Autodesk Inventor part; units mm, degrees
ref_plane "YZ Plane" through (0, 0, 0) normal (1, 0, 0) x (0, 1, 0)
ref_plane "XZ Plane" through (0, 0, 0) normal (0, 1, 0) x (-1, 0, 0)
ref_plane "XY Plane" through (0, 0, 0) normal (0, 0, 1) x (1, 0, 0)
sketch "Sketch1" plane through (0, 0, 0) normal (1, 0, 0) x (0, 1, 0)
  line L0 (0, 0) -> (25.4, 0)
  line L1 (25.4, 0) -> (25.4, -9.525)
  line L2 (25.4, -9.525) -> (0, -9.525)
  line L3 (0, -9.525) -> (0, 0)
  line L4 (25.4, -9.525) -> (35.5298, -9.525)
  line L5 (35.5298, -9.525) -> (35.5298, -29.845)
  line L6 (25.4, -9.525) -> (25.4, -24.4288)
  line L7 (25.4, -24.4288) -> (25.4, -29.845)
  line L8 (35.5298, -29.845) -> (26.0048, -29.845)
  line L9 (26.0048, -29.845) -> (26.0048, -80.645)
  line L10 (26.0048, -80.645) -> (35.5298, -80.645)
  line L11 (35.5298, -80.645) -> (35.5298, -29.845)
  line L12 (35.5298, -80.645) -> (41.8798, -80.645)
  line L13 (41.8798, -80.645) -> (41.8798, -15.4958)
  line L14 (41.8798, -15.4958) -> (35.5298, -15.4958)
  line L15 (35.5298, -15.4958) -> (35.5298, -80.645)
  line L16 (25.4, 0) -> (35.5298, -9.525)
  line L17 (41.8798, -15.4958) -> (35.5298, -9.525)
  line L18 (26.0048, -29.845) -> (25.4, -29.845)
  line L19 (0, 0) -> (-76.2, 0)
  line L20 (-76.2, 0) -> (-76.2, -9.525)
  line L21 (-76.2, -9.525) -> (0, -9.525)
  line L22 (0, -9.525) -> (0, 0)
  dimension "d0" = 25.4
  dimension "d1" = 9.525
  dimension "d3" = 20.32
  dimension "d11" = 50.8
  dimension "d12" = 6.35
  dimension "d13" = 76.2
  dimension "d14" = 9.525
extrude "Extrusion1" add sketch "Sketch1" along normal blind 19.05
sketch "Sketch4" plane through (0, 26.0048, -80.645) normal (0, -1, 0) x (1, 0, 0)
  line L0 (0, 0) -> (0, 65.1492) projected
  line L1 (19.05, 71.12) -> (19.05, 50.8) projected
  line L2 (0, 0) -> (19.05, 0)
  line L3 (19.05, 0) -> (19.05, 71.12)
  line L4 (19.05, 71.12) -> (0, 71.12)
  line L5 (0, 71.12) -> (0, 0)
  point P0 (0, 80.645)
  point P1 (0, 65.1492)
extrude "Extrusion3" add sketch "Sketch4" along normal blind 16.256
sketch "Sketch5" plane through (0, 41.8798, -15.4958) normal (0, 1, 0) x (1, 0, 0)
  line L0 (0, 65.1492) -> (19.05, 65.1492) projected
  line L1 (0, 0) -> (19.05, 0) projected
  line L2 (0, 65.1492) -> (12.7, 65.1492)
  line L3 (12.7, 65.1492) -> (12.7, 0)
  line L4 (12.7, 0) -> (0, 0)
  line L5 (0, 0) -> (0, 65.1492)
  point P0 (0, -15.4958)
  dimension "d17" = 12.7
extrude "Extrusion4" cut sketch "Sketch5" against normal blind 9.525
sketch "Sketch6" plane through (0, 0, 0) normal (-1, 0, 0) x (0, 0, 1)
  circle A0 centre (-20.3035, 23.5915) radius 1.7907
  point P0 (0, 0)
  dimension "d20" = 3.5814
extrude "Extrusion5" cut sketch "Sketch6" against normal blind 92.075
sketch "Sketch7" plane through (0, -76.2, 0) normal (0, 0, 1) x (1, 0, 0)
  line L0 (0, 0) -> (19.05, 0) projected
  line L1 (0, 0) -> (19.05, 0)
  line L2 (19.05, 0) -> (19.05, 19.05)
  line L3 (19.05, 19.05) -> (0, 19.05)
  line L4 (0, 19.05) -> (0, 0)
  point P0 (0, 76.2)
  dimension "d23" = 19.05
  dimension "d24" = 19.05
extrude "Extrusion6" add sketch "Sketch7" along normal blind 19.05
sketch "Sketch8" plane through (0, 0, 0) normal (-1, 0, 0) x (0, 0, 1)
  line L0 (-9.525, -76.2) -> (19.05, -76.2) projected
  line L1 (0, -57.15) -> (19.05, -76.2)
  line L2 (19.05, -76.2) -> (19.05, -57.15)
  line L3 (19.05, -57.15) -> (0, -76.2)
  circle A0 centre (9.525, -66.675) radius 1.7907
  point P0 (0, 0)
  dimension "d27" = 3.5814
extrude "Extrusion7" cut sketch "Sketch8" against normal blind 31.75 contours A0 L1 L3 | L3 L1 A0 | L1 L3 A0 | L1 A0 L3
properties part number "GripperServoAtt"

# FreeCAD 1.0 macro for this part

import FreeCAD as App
import Part
import Sketcher
Q = App.Units.Quantity

doc = App.newDocument("Part")
body = doc.addObject("PartDesign::Body", "Body")

# Sketch on YZ plane
sketch1 = body.newObject("Sketcher::SketchObject", "Sketch")
sketch1.AttachmentSupport = (doc.getObject("YZ_Plane"), [""])
sketch1.MapMode = "FlatFace"
sketch1.addGeometry([
    Part.LineSegment(App.Vector(25.4, 0, 0), App.Vector(-76.2, 0, 0)),  # 0
    Part.LineSegment(App.Vector(-76.2, 0, 0), App.Vector(-76.2, -9.525, 0)),  # 1
    Part.LineSegment(App.Vector(-76.2, -9.525, 0), App.Vector(25.4, -9.525, 0)),  # 2
    Part.LineSegment(App.Vector(25.4, -9.525, 0), App.Vector(25.4, -29.845, 0)),  # 3
    Part.LineSegment(App.Vector(25.4, -29.845, 0), App.Vector(26.0048, -29.845, 0)),  # 4
    Part.LineSegment(App.Vector(26.0048, -29.845, 0), App.Vector(26.0048, -80.645, 0)),  # 5
    Part.LineSegment(App.Vector(26.0048, -80.645, 0), App.Vector(41.8798, -80.645, 0)),  # 6
    Part.LineSegment(App.Vector(41.8798, -80.645, 0), App.Vector(41.8798, -15.4958, 0)),  # 7
    Part.LineSegment(App.Vector(41.8798, -15.4958, 0), App.Vector(35.5298, -9.525, 0)),  # 8
    Part.LineSegment(App.Vector(35.5298, -9.525, 0), App.Vector(25.4, 0, 0)),  # 9
], False)
sketch1.addConstraint([
    Sketcher.Constraint("Coincident", 0, 2, 1, 1),
    Sketcher.Constraint("Coincident", 1, 2, 2, 1),
    Sketcher.Constraint("Coincident", 2, 2, 3, 1),
    Sketcher.Constraint("Coincident", 3, 2, 4, 1),
    Sketcher.Constraint("Coincident", 4, 2, 5, 1),
    Sketcher.Constraint("Coincident", 5, 2, 6, 1),
    Sketcher.Constraint("Coincident", 6, 2, 7, 1),
    Sketcher.Constraint("Coincident", 7, 2, 8, 1),
    Sketcher.Constraint("Coincident", 8, 2, 9, 1),
    Sketcher.Constraint("Coincident", 9, 2, 0, 1),
    Sketcher.Constraint("Horizontal", 0),
    Sketcher.Constraint("Vertical", 1),
    Sketcher.Constraint("Horizontal", 2),
    Sketcher.Constraint("Vertical", 3),
    Sketcher.Constraint("Horizontal", 4),
    Sketcher.Constraint("Vertical", 5),
    Sketcher.Constraint("Horizontal", 6),
    Sketcher.Constraint("Vertical", 7),
    Sketcher.Constraint("PointOnObject", 0, 2, -1),
    Sketcher.Constraint("Parallel", 8, 9),
    Sketcher.Constraint("Horizontal", 2, 2, 8, 2),
    Sketcher.Constraint("Vertical", 3, 2, 9, 2),
    Sketcher.Constraint("DistanceY", 5, 2, 5, 1, Q("2 in")),
    Sketcher.Constraint("DistanceY", 3, 2, 3, 1, Q("0.8 in")),
    Sketcher.Constraint("DistanceX", 0, 2, -1, 1, Q("3 in")),
    Sketcher.Constraint("DistanceX", -1, 1, 2, 2, Q("1 in")),
    Sketcher.Constraint("DistanceY", 1, 2, 1, 1, Q("0.375 in")),
    Sketcher.Constraint("DistanceX", 8, 2, 7, 2, Q("0.25 in")),
    Sketcher.Constraint("DistanceX", 4, 2, 8, 2, Q("0.375 in")),
    Sketcher.Constraint("DistanceX", 4, 1, 4, 2, Q("0.0238 in")),
])
pad1 = body.newObject("PartDesign::Pad", "Pad")
pad1.Profile = sketch1
pad1.Length = Q("0.75 in")

# Sketch on XZ plane
sketch2 = body.newObject("Sketcher::SketchObject", "Sketch001")
sketch2.AttachmentSupport = (doc.getObject("XZ_Plane"), [""])
sketch2.MapMode = "FlatFace"
sketch2.AttachmentOffset = App.Placement(App.Vector(0, 0, -1.023811 * 25.4), App.Rotation())
sketch2.addGeometry([
    Part.LineSegment(App.Vector(0, -9.525, 0), App.Vector(0, -80.645, 0)),
    Part.LineSegment(App.Vector(0, -80.645, 0), App.Vector(19.05, -80.645, 0)),
    Part.LineSegment(App.Vector(19.05, -80.645, 0), App.Vector(19.05, -9.525, 0)),
    Part.LineSegment(App.Vector(19.05, -9.525, 0), App.Vector(0, -9.525, 0)),
], False)
sketch2.addConstraint([
    Sketcher.Constraint("Coincident", 0, 2, 1, 1),
    Sketcher.Constraint("Coincident", 1, 2, 2, 1),
    Sketcher.Constraint("Coincident", 2, 2, 3, 1),
    Sketcher.Constraint("Coincident", 3, 2, 0, 1),
    Sketcher.Constraint("Vertical", 0),
    Sketcher.Constraint("Horizontal", 1),
    Sketcher.Constraint("Vertical", 2),
    Sketcher.Constraint("Horizontal", 3),
    Sketcher.Constraint("PointOnObject", 0, 2, -2),
    Sketcher.Constraint("DistanceY", 0, 2, 0, 1, Q("2.8 in")),
    Sketcher.Constraint("DistanceX", 1, 1, 1, 2, Q("0.75 in")),
    Sketcher.Constraint("DistanceY", 0, 2, -1, 1, Q("3.175 in")),
])
pad2 = body.newObject("PartDesign::Pad", "Pad001")
pad2.Profile = sketch2
pad2.Length = Q("0.64 in")

# Sketch on XZ plane
sketch3 = body.newObject("Sketcher::SketchObject", "Sketch002")
sketch3.AttachmentSupport = (doc.getObject("XZ_Plane"), [""])
sketch3.MapMode = "FlatFace"
sketch3.AttachmentOffset = App.Placement(App.Vector(0, 0, -1.648811 * 25.4), App.Rotation())
sketch3.addGeometry([
    Part.LineSegment(App.Vector(12.7, -80.645, 0), App.Vector(0, -80.645, 0)),
    Part.LineSegment(App.Vector(0, -80.645, 0), App.Vector(0, -15.4958, 0)),
    Part.LineSegment(App.Vector(0, -15.4958, 0), App.Vector(12.7, -15.4958, 0)),
    Part.LineSegment(App.Vector(12.7, -15.4958, 0), App.Vector(12.7, -80.645, 0)),
], False)
sketch3.addConstraint([
    Sketcher.Constraint("Coincident", 0, 2, 1, 1),
    Sketcher.Constraint("Coincident", 1, 2, 2, 1),
    Sketcher.Constraint("Coincident", 2, 2, 3, 1),
    Sketcher.Constraint("Coincident", 3, 2, 0, 1),
    Sketcher.Constraint("Horizontal", 0),
    Sketcher.Constraint("Vertical", 1),
    Sketcher.Constraint("Horizontal", 2),
    Sketcher.Constraint("Vertical", 3),
    Sketcher.Constraint("PointOnObject", 0, 2, -2),
    Sketcher.Constraint("DistanceX", 0, 2, 0, 1, Q("0.5 in")),
    Sketcher.Constraint("DistanceY", 0, 2, -1, 1, Q("3.175 in")),
    Sketcher.Constraint("DistanceY", 1, 1, 1, 2, Q("65.1492 mm")),
])
pocket1 = body.newObject("PartDesign::Pocket", "Pocket")
pocket1.Profile = sketch3
pocket1.Length = Q("0.375 in")
pocket1.Reversed = True

# Sketch on YZ plane
sketch4 = body.newObject("Sketcher::SketchObject", "Sketch003")
sketch4.AttachmentSupport = (doc.getObject("YZ_Plane"), [""])
sketch4.MapMode = "FlatFace"
sketch4.addGeometry(Part.Circle(App.Vector(23.5915, -20.3035, 0), App.Vector(0, 0, 1), 1.7907), False)
sketch4.addConstraint([
    Sketcher.Constraint("Diameter", 0, Q("0.141 in")),
    Sketcher.Constraint("DistanceX", -1, 1, 0, 3, Q("0.9288 in")),
    Sketcher.Constraint("DistanceY", 0, 3, -1, 1, Q("20.3035 mm")),
])
pocket2 = body.newObject("PartDesign::Pocket", "Pocket001")
pocket2.Profile = sketch4
pocket2.Length = Q("3.625 in")
pocket2.Reversed = True

# Sketch on XY plane
sketch5 = body.newObject("Sketcher::SketchObject", "Sketch004")
sketch5.AttachmentSupport = (doc.getObject("XY_Plane"), [""])
sketch5.MapMode = "FlatFace"
sketch5.addGeometry([
    Part.LineSegment(App.Vector(0, -57.15, 0), App.Vector(0, -76.2, 0)),
    Part.LineSegment(App.Vector(0, -76.2, 0), App.Vector(19.05, -76.2, 0)),
    Part.LineSegment(App.Vector(19.05, -76.2, 0), App.Vector(19.05, -57.15, 0)),
    Part.LineSegment(App.Vector(19.05, -57.15, 0), App.Vector(0, -57.15, 0)),
], False)
sketch5.addConstraint([
    Sketcher.Constraint("Coincident", 0, 2, 1, 1),
    Sketcher.Constraint("Coincident", 1, 2, 2, 1),
    Sketcher.Constraint("Coincident", 2, 2, 3, 1),
    Sketcher.Constraint("Coincident", 3, 2, 0, 1),
    Sketcher.Constraint("Vertical", 0),
    Sketcher.Constraint("Horizontal", 1),
    Sketcher.Constraint("Vertical", 2),
    Sketcher.Constraint("Horizontal", 3),
    Sketcher.Constraint("PointOnObject", 0, 2, -2),
    Sketcher.Constraint("Equal", 3, 0),
    Sketcher.Constraint("DistanceX", 1, 1, 1, 2, Q("0.75 in")),
    Sketcher.Constraint("DistanceY", 0, 2, -1, 1, Q("3 in")),
])
pad3 = body.newObject("PartDesign::Pad", "Pad002")
pad3.Profile = sketch5
pad3.Length = Q("0.75 in")

# Sketch on YZ plane
sketch6 = body.newObject("Sketcher::SketchObject", "Sketch005")
sketch6.AttachmentSupport = (doc.getObject("YZ_Plane"), [""])
sketch6.MapMode = "FlatFace"
sketch6.addGeometry(Part.Circle(App.Vector(-66.675, 9.525, 0), App.Vector(0, 0, 1), 1.7907), False)
sketch6.addConstraint([
    Sketcher.Constraint("Diameter", 0, Q("0.141 in")),
    Sketcher.Constraint("DistanceX", 0, 3, -1, 1, Q("2.625 in")),
    Sketcher.Constraint("DistanceY", -1, 1, 0, 3, Q("0.375 in")),
])
pocket3 = body.newObject("PartDesign::Pocket", "Pocket002")
pocket3.Profile = sketch6
pocket3.Length = Q("1.25 in")
pocket3.Reversed = True

doc.recompute()
